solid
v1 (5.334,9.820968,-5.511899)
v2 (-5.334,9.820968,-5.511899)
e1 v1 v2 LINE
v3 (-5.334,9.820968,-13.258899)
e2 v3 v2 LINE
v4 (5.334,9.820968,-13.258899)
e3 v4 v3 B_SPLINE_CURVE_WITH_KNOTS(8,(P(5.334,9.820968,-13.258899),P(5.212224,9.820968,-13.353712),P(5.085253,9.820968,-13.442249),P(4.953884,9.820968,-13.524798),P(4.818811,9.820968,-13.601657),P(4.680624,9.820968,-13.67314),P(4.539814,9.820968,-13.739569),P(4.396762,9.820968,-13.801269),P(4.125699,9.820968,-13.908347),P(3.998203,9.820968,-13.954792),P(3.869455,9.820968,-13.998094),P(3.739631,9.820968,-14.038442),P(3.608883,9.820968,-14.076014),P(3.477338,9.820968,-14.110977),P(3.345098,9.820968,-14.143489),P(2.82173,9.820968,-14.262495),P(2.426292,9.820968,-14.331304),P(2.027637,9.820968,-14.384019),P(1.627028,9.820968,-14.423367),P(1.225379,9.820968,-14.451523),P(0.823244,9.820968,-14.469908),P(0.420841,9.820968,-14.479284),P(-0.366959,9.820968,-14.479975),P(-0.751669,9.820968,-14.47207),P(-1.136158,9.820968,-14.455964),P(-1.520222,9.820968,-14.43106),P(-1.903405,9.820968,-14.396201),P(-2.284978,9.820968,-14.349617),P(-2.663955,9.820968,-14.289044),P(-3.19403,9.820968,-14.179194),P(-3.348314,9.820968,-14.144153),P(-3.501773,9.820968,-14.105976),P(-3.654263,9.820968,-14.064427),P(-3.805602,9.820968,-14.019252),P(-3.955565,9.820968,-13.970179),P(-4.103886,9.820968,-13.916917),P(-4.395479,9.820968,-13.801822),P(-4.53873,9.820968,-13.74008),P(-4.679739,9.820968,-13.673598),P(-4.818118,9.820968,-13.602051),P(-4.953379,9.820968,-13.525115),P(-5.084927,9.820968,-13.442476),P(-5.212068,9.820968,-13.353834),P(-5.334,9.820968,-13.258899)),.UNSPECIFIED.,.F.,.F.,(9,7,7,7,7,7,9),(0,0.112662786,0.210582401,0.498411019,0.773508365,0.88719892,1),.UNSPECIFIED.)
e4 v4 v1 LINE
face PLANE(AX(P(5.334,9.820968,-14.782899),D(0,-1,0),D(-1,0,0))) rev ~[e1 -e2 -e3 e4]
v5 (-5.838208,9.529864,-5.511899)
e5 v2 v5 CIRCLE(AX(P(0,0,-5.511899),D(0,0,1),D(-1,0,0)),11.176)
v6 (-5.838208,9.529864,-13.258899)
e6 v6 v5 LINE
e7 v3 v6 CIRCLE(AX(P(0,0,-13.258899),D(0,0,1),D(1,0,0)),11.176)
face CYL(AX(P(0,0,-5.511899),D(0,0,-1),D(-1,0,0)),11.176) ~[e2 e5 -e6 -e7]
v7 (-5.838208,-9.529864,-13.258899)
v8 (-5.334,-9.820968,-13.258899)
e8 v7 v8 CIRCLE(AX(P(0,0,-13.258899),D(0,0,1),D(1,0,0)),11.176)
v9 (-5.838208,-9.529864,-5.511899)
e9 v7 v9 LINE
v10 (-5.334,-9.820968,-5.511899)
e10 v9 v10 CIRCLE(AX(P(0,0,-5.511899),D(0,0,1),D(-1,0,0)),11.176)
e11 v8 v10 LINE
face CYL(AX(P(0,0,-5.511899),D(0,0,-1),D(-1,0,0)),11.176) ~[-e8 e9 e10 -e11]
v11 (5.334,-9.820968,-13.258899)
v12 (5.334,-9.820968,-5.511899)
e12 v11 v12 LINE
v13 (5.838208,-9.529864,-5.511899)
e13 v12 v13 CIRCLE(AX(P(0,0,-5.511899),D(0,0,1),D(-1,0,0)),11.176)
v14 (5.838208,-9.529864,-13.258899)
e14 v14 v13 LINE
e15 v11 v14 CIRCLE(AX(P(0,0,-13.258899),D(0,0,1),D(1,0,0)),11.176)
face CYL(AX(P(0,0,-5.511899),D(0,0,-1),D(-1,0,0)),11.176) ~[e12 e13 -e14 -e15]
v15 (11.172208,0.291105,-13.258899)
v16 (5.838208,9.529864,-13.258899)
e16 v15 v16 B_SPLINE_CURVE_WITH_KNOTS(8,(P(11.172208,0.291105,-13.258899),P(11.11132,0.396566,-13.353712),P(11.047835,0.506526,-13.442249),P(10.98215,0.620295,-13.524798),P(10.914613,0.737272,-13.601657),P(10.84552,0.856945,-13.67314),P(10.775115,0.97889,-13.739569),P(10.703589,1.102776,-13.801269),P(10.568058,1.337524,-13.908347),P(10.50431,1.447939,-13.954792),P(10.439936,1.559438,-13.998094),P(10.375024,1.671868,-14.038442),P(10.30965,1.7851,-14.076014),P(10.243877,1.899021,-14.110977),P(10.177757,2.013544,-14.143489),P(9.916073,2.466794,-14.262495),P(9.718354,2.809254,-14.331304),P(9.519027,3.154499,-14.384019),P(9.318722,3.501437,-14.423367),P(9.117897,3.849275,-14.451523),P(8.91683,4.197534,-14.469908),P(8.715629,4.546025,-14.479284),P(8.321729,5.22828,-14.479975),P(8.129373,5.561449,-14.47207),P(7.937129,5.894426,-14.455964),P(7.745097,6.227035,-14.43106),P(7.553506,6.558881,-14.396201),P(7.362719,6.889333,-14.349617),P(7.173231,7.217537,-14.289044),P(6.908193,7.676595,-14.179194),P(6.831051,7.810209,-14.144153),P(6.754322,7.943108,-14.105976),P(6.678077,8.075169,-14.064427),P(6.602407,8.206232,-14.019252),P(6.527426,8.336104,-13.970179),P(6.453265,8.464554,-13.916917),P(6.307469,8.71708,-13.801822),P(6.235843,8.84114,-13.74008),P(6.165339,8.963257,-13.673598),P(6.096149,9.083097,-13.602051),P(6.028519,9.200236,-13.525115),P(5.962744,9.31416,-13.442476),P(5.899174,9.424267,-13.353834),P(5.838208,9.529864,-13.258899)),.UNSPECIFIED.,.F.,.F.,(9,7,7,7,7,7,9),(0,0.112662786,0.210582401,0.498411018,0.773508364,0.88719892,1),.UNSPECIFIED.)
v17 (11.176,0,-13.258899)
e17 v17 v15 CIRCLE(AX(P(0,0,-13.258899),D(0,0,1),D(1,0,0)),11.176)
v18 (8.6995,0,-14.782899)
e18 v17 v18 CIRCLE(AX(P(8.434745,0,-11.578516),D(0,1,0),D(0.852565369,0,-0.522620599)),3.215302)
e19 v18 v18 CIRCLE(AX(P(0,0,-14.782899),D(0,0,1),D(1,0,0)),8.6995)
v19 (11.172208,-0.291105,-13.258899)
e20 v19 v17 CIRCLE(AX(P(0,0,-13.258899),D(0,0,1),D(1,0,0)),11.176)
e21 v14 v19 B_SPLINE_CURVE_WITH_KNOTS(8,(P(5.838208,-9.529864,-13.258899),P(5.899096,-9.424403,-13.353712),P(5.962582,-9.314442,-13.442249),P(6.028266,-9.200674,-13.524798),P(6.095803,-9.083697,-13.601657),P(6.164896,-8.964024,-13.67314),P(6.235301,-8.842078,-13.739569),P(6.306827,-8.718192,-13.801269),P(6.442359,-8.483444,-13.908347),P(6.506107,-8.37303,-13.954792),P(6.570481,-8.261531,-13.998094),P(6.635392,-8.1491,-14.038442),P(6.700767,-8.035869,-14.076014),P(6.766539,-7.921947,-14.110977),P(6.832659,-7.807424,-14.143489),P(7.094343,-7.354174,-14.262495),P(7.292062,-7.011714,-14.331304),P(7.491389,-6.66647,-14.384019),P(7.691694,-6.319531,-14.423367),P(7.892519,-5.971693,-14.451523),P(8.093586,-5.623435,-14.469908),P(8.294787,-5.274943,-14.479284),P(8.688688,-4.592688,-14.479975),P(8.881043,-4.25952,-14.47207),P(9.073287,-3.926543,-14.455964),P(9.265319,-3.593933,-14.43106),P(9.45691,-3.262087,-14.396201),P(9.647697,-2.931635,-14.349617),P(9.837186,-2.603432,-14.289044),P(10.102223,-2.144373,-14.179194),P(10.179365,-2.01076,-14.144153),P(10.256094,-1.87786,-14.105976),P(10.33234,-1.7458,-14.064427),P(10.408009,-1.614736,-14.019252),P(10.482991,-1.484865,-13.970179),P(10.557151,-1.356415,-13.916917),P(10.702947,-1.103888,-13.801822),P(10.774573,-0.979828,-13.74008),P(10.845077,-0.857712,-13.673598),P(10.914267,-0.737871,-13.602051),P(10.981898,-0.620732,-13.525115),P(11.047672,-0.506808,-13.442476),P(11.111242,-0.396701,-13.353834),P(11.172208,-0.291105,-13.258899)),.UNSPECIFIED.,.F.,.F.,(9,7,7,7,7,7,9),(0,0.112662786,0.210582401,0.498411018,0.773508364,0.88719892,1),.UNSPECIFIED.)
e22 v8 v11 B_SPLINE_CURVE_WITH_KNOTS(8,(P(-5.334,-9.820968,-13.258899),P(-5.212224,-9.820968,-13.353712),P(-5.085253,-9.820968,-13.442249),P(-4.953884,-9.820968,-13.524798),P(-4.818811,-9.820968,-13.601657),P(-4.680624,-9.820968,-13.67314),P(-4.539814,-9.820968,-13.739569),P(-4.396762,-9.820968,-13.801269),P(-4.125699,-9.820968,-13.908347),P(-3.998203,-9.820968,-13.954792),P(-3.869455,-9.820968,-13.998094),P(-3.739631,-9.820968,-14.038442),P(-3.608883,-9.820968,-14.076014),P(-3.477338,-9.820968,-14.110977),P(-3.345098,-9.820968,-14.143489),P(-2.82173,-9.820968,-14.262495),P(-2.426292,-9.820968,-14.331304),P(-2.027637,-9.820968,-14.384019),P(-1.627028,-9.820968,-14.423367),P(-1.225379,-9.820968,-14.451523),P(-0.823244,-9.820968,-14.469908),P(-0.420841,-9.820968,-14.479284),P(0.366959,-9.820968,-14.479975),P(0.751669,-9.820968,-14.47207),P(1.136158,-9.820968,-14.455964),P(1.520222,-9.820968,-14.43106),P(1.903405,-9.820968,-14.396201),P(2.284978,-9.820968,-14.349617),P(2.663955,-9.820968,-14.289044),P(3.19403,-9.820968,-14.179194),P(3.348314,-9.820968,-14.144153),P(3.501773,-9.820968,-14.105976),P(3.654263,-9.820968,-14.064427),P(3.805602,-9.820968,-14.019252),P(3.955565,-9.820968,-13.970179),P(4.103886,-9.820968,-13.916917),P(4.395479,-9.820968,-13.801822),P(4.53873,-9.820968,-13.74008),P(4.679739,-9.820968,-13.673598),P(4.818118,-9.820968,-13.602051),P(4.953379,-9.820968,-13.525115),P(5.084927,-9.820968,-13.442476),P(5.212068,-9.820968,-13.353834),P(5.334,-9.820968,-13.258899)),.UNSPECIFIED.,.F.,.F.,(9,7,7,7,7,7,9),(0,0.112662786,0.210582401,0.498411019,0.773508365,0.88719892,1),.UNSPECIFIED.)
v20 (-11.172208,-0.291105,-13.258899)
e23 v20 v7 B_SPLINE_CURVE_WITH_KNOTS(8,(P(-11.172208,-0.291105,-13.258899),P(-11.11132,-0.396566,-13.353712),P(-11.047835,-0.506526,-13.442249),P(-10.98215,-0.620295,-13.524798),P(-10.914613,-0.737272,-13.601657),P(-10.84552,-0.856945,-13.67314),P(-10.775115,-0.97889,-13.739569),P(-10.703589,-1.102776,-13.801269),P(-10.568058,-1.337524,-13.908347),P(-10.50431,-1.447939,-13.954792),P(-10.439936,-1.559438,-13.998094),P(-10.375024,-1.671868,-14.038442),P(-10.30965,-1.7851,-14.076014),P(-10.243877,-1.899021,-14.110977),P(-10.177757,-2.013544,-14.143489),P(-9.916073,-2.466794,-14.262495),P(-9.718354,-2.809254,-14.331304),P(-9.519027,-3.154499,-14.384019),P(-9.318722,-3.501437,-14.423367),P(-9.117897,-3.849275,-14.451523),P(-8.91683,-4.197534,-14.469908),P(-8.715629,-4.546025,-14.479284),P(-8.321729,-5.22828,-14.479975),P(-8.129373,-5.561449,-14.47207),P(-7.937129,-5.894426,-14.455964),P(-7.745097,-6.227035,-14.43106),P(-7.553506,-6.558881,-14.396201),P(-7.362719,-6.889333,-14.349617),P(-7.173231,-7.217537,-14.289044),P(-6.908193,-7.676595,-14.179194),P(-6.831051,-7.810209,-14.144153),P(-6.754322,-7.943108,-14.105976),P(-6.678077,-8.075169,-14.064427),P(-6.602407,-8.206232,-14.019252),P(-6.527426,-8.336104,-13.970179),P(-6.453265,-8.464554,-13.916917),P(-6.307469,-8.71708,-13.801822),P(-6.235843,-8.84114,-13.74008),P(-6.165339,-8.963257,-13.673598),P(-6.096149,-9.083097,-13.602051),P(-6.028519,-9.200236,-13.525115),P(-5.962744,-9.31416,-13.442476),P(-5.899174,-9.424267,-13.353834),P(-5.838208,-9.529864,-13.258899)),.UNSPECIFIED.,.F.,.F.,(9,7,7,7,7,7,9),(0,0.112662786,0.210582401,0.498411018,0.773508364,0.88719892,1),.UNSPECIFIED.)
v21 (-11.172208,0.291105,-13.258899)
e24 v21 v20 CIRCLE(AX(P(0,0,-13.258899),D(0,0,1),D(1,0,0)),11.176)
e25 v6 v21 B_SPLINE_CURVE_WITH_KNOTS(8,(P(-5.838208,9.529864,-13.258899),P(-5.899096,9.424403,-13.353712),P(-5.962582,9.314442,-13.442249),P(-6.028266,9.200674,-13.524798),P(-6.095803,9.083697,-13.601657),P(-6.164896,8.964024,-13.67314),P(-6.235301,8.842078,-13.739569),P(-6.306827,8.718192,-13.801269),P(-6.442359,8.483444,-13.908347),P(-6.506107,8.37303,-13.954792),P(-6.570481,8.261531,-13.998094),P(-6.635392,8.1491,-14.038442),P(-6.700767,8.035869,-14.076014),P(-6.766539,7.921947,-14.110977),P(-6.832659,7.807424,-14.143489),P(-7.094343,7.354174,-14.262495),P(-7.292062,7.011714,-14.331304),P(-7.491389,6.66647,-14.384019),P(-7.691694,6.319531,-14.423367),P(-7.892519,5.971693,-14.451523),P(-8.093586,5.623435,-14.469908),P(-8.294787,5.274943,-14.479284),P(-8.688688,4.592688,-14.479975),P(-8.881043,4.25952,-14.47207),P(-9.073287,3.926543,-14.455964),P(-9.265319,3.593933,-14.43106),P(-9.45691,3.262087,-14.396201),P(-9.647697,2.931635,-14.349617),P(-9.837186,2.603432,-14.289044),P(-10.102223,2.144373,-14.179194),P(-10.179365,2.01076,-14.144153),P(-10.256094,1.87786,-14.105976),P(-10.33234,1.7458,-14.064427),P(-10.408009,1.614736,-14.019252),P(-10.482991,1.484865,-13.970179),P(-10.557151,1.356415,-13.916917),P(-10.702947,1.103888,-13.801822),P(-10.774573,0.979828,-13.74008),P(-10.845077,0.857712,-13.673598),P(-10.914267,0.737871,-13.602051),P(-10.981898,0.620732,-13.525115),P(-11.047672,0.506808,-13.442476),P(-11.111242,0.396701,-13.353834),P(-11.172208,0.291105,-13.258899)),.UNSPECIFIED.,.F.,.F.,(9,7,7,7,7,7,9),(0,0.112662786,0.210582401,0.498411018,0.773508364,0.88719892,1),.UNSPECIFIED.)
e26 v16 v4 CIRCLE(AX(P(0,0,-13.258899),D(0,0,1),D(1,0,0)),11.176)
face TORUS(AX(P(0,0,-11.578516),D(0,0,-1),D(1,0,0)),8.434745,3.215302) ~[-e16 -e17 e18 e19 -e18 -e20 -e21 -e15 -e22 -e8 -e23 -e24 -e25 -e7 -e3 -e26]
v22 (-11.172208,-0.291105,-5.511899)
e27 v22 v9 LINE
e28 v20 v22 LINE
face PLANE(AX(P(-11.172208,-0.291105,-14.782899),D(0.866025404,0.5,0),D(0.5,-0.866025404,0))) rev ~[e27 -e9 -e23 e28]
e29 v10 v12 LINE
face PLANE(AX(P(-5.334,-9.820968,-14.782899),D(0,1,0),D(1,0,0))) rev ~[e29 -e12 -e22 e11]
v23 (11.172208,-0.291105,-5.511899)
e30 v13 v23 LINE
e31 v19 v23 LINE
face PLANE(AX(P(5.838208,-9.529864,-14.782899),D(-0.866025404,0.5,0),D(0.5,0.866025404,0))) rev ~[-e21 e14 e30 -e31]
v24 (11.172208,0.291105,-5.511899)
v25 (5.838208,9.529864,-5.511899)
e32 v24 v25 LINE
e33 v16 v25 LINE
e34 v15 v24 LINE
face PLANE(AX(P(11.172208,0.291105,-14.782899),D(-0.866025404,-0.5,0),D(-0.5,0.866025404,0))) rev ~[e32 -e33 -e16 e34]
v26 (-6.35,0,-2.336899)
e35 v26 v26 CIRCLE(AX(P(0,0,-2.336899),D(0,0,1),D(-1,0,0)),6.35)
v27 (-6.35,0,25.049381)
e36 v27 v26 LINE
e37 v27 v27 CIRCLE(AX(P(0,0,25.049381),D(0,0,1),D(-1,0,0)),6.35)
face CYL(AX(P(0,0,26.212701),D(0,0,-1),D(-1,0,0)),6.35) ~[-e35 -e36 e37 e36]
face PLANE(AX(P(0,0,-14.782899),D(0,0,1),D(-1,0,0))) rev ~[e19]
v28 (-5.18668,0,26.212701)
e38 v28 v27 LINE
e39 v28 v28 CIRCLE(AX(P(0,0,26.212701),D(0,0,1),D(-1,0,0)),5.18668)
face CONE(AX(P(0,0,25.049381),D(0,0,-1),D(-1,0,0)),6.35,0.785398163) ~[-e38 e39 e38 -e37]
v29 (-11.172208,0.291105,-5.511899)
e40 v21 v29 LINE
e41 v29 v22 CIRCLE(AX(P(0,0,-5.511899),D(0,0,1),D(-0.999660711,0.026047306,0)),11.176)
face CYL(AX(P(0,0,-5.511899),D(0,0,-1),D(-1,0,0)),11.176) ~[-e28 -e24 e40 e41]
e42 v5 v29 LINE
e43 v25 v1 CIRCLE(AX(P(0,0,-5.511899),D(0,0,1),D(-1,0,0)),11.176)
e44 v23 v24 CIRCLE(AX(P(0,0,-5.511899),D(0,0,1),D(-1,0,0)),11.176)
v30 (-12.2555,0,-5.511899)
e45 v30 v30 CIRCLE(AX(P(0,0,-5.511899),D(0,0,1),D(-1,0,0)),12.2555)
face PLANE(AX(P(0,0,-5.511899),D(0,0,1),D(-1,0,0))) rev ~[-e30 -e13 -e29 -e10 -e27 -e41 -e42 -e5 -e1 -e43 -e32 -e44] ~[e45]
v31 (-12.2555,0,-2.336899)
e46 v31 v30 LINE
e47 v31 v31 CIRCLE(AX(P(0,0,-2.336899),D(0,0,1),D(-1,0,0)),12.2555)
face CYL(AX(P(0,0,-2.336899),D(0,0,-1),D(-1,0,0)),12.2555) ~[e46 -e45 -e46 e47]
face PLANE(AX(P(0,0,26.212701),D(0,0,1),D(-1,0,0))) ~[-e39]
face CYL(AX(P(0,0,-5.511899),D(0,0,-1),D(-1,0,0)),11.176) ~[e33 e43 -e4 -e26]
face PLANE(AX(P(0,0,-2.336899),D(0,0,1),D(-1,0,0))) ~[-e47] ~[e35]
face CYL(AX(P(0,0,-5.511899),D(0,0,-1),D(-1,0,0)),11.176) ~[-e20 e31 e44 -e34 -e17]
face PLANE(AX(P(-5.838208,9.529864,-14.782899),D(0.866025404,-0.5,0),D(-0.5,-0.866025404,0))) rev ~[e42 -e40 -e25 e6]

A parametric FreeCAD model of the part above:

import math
import FreeCAD as App
import Part
import Sketcher
Q = App.Units.Quantity


def edges_at(feature, points):
    """Names of the edges that pass closest to the given points."""
    edges = feature.Shape.Edges
    near = lambda p: min(range(len(edges)), key=lambda i: edges[i].distToShape(Part.Vertex(*p))[0])
    return sorted({f"Edge{near(p) + 1}" for p in points})


def add_polygon(sketch, points):
    """Adds a closed chain of lines whose ends are joined by coincident constraints."""
    first, n = sketch.GeometryCount, len(points)
    for a, b in zip(points, points[1:] + points[:1]):
        sketch.addGeometry(Part.LineSegment(App.Vector(*a, 0), App.Vector(*b, 0)), False)
    for i in range(n):
        sketch.addConstraint(Sketcher.Constraint("Coincident", first + i, 2, first + (i + 1) % n, 1))

doc = App.newDocument("Part")
params = doc.addObject("Spreadsheet::Sheet", "Params")
for row, (alias, value) in enumerate([
    ("sketch1_width", "0.44 in"),
    ("sketch1_width2", "0.25 in"),
    ("sketch1_height", "1.614 in"),
    ("sketch1_height2", "0.365 in"),
    ("sketch1_height3", "0.125 in"),
    ("revolution_angle", "360 deg"),
    ("sketch2_radius", "0.44 in"),
    ("sketch2_width", "0.42 in"),
    ("sketch2_length", "0.42 in"),
    ("pocket1_length", "0.365 in"),
    ("sketch3_height", "0.06 in"),
    ("groove_angle", "360 deg"),
    ("chamfer_size", "0.0458 in"),
], start=1):
    params.set(f"A{row}", alias)
    params.set(f"B{row}", "=" + value)
    params.setAlias(f"B{row}", alias)

body = doc.addObject("PartDesign::Body", "Body")

sketch1 = body.newObject("Sketcher::SketchObject", "Sketch")
sketch1.AttachmentSupport = (doc.getObject("XZ_Plane"), [""])
sketch1.MapMode = "FlatFace"
add_polygon(sketch1, [(0, 26.212701), (0, -14.782899), (-11.176, -14.782899), (-11.176, -5.511899), (-12.2555, -5.511899), (-12.2555, -2.336899), (-6.35, -2.336899), (-6.35, 26.212701)])
sketch1.addConstraint(Sketcher.Constraint("Vertical", 0))
sketch1.addConstraint(Sketcher.Constraint("Horizontal", 1))
sketch1.addConstraint(Sketcher.Constraint("Vertical", 2))
sketch1.addConstraint(Sketcher.Constraint("Horizontal", 3))
sketch1.addConstraint(Sketcher.Constraint("Vertical", 4))
sketch1.addConstraint(Sketcher.Constraint("Horizontal", 5))
sketch1.addConstraint(Sketcher.Constraint("Vertical", 6))
sketch1.addConstraint(Sketcher.Constraint("Horizontal", 7))
sketch1.addConstraint(Sketcher.Constraint("PointOnObject", 0, 2, -2))
sketch1.addConstraint(Sketcher.Constraint("DistanceX", 1, 2, 1, 1, Q("0.44 in")))
sketch1.addConstraint(Sketcher.Constraint("DistanceX", 7, 1, 7, 2, Q("0.25 in")))
sketch1.addConstraint(Sketcher.Constraint("DistanceY", 0, 2, 0, 1, Q("1.614 in")))
sketch1.addConstraint(Sketcher.Constraint("DistanceY", 2, 1, 2, 2, Q("0.365 in")))
sketch1.addConstraint(Sketcher.Constraint("DistanceY", 4, 1, 4, 2, Q("0.125 in")))
sketch1.addConstraint(Sketcher.Constraint("DistanceX", 3, 2, 3, 1, Q("0.0425 in")))
sketch1.addConstraint(Sketcher.Constraint("DistanceY", 0, 2, -1, 1, Q("14.782899 mm")))
sketch1.setExpression("Constraints[17]", "Params.sketch1_width")
sketch1.setExpression("Constraints[18]", "Params.sketch1_width2")
sketch1.setExpression("Constraints[19]", "Params.sketch1_height")
sketch1.setExpression("Constraints[20]", "Params.sketch1_height2")
sketch1.setExpression("Constraints[21]", "Params.sketch1_height3")
revolution = body.newObject("PartDesign::Revolution", "Revolution")
revolution.Profile = sketch1
revolution.ReferenceAxis = (sketch1, ["V_Axis"])
revolution.setExpression("Angle", "Params.revolution_angle")

sketch2 = body.newObject("Sketcher::SketchObject", "Sketch001")
sketch2.AttachmentSupport = (doc.getObject("XY_Plane"), [""])
sketch2.MapMode = "FlatFace"
sketch2.AttachmentOffset = App.Placement(App.Vector(0, 0, -14.782899), App.Rotation())
sketch2.addGeometry(Part.ArcOfCircle(Part.Circle(App.Vector(0, 0, 0), App.Vector(0, 0, 1), 11.176), math.radians(61.492569), math.radians(118.507431)), False)
sketch2.addGeometry(Part.LineSegment(App.Vector(5.334, 9.820968, 0), App.Vector(-5.334, 9.820968, 0)), False)
sketch2.addGeometry(Part.LineSegment(App.Vector(11.172208, 0.291105, 0), App.Vector(5.838208, 9.529864, 0)), False)
sketch2.addGeometry(Part.ArcOfCircle(Part.Circle(App.Vector(0, 0, 0), App.Vector(0, 0, 1), 11.176), math.radians(1.492569), math.radians(58.507431)), False)
sketch2.addGeometry(Part.LineSegment(App.Vector(5.838208, -9.529864, 0), App.Vector(11.172208, -0.291105, 0)), False)
sketch2.addGeometry(Part.ArcOfCircle(Part.Circle(App.Vector(0, 0, 0), App.Vector(0, 0, 1), 11.176), math.radians(-58.507431), math.radians(-1.492569)), False)
sketch2.addGeometry(Part.LineSegment(App.Vector(-5.334, -9.820968, 0), App.Vector(5.334, -9.820968, 0)), False)
sketch2.addGeometry(Part.ArcOfCircle(Part.Circle(App.Vector(0, 0, 0), App.Vector(0, 0, 1), 11.176), math.radians(-118.507431), math.radians(-61.492569)), False)
sketch2.addGeometry(Part.ArcOfCircle(Part.Circle(App.Vector(0, 0, 0), App.Vector(0, 0, 1), 11.176), math.radians(-178.507431), math.radians(-121.492569)), False)
sketch2.addGeometry(Part.LineSegment(App.Vector(-11.172208, -0.291105, 0), App.Vector(-5.838208, -9.529864, 0)), False)
sketch2.addGeometry(Part.ArcOfCircle(Part.Circle(App.Vector(0, 0, 0), App.Vector(0, 0, 1), 11.176), math.radians(121.492569), math.radians(178.507431)), False)
sketch2.addGeometry(Part.LineSegment(App.Vector(-5.838208, 9.529864, 0), App.Vector(-11.172208, 0.291105, 0)), False)
sketch2.addConstraint(Sketcher.Constraint("Coincident", 0, 1, 1, 1))
sketch2.addConstraint(Sketcher.Constraint("Coincident", 1, 2, 0, 2))
sketch2.addConstraint(Sketcher.Constraint("Coincident", 2, 1, 3, 1))
sketch2.addConstraint(Sketcher.Constraint("Coincident", 3, 2, 2, 2))
sketch2.addConstraint(Sketcher.Constraint("Coincident", 4, 1, 5, 1))
sketch2.addConstraint(Sketcher.Constraint("Coincident", 5, 2, 4, 2))
sketch2.addConstraint(Sketcher.Constraint("Coincident", 6, 1, 7, 1))
sketch2.addConstraint(Sketcher.Constraint("Coincident", 7, 2, 6, 2))
sketch2.addConstraint(Sketcher.Constraint("Coincident", 8, 1, 9, 1))
sketch2.addConstraint(Sketcher.Constraint("Coincident", 9, 2, 8, 2))
sketch2.addConstraint(Sketcher.Constraint("Coincident", 10, 1, 11, 1))
sketch2.addConstraint(Sketcher.Constraint("Coincident", 11, 2, 10, 2))
sketch2.addConstraint(Sketcher.Constraint("Horizontal", 1))
sketch2.addConstraint(Sketcher.Constraint("Horizontal", 6))
sketch2.addConstraint(Sketcher.Constraint("Coincident", 0, 3, -1, 1))
sketch2.addConstraint(Sketcher.Constraint("Coincident", 3, 3, -1, 1))
sketch2.addConstraint(Sketcher.Constraint("Coincident", 5, 3, -1, 1))
sketch2.addConstraint(Sketcher.Constraint("Coincident", 7, 3, -1, 1))
sketch2.addConstraint(Sketcher.Constraint("Coincident", 8, 3, -1, 1))
sketch2.addConstraint(Sketcher.Constraint("Coincident", 10, 3, -1, 1))
sketch2.addConstraint(Sketcher.Constraint("Equal", 0, 3))
sketch2.addConstraint(Sketcher.Constraint("Equal", 3, 5))
sketch2.addConstraint(Sketcher.Constraint("Equal", 5, 7))
sketch2.addConstraint(Sketcher.Constraint("Equal", 7, 8))
sketch2.addConstraint(Sketcher.Constraint("Equal", 8, 10))
sketch2.addConstraint(Sketcher.Constraint("Parallel", 2, 9))
sketch2.addConstraint(Sketcher.Constraint("Parallel", 4, 11))
sketch2.addConstraint(Sketcher.Constraint("Horizontal", 5, 2, 8, 1))
sketch2.addConstraint(Sketcher.Constraint("Horizontal", 4, 1, 9, 2))
sketch2.addConstraint(Sketcher.Constraint("Horizontal", 3, 2, 10, 1))
sketch2.addConstraint(Sketcher.Constraint("Vertical", 3, 2, 4, 1))
sketch2.addConstraint(Sketcher.Constraint("Vertical", 1, 2, 6, 1))
sketch2.addConstraint(Sketcher.Constraint("Radius", 0, Q("0.44 in")))
sketch2.addConstraint(Sketcher.Constraint("Angle", 2, Q("120 deg")))
sketch2.addConstraint(Sketcher.Constraint("DistanceX", 1, 2, 1, 1, Q("0.42 in")))
sketch2.addConstraint(Sketcher.Constraint("Distance", 2, Q("0.42 in")))
sketch2.setExpression("Constraints[32]", "Params.sketch2_radius")
sketch2.setExpression("Constraints[34]", "Params.sketch2_width")
sketch2.setExpression("Constraints[35]", "Params.sketch2_length")
pocket1 = body.newObject("PartDesign::Pocket", "Pocket")
pocket1.Profile = sketch2
pocket1.setExpression("Length", "Params.pocket1_length")
pocket1.Reversed = True

sketch3 = body.newObject("Sketcher::SketchObject", "Sketch002")
sketch3.AttachmentSupport = (doc.getObject("XZ_Plane"), [""])
sketch3.MapMode = "FlatFace"
sketch3.addGeometry(Part.LineSegment(App.Vector(11.176, -14.782899, 0), App.Vector(8.6995, -14.782899, 0)), False)
sketch3.addGeometry(Part.ArcOfCircle(Part.Circle(App.Vector(8.434745, -11.578516, 0), App.Vector(0, 0, 1), 3.215302), math.radians(-85.276795), math.radians(-31.508201)), False)
sketch3.addGeometry(Part.LineSegment(App.Vector(11.176, -13.258899, 0), App.Vector(11.176, -14.782899, 0)), False)
sketch3.addConstraint(Sketcher.Constraint("Coincident", 0, 2, 1, 1))
sketch3.addConstraint(Sketcher.Constraint("Coincident", 1, 2, 2, 1))
sketch3.addConstraint(Sketcher.Constraint("Coincident", 2, 2, 0, 1))
sketch3.addConstraint(Sketcher.Constraint("Horizontal", 0))
sketch3.addConstraint(Sketcher.Constraint("Vertical", 2))
sketch3.addConstraint(Sketcher.Constraint("DistanceY", 2, 2, 2, 1, Q("0.06 in")))
sketch3.addConstraint(Sketcher.Constraint("DistanceX", -1, 1, 1, 2, Q("0.44 in")))
sketch3.addConstraint(Sketcher.Constraint("Radius", 1, Q("3.215302 mm")))
sketch3.addConstraint(Sketcher.Constraint("DistanceX", 0, 2, 0, 1, Q("0.0975 in")))
sketch3.addConstraint(Sketcher.Constraint("DistanceY", 0, 2, -1, 1, Q("14.782899 mm")))
sketch3.setExpression("Constraints[5]", "Params.sketch3_height")
groove = body.newObject("PartDesign::Groove", "Groove")
groove.Profile = sketch3
groove.ReferenceAxis = (sketch3, ["V_Axis"])
groove.setExpression("Angle", "Params.groove_angle")
doc.recompute()

chamfer = body.newObject("PartDesign::Chamfer", "Chamfer")
chamfer.Base = (groove, edges_at(groove, [(6.35, 0, 26.213)]))
chamfer.setExpression("Size", "Params.chamfer_size")

doc.recompute()
